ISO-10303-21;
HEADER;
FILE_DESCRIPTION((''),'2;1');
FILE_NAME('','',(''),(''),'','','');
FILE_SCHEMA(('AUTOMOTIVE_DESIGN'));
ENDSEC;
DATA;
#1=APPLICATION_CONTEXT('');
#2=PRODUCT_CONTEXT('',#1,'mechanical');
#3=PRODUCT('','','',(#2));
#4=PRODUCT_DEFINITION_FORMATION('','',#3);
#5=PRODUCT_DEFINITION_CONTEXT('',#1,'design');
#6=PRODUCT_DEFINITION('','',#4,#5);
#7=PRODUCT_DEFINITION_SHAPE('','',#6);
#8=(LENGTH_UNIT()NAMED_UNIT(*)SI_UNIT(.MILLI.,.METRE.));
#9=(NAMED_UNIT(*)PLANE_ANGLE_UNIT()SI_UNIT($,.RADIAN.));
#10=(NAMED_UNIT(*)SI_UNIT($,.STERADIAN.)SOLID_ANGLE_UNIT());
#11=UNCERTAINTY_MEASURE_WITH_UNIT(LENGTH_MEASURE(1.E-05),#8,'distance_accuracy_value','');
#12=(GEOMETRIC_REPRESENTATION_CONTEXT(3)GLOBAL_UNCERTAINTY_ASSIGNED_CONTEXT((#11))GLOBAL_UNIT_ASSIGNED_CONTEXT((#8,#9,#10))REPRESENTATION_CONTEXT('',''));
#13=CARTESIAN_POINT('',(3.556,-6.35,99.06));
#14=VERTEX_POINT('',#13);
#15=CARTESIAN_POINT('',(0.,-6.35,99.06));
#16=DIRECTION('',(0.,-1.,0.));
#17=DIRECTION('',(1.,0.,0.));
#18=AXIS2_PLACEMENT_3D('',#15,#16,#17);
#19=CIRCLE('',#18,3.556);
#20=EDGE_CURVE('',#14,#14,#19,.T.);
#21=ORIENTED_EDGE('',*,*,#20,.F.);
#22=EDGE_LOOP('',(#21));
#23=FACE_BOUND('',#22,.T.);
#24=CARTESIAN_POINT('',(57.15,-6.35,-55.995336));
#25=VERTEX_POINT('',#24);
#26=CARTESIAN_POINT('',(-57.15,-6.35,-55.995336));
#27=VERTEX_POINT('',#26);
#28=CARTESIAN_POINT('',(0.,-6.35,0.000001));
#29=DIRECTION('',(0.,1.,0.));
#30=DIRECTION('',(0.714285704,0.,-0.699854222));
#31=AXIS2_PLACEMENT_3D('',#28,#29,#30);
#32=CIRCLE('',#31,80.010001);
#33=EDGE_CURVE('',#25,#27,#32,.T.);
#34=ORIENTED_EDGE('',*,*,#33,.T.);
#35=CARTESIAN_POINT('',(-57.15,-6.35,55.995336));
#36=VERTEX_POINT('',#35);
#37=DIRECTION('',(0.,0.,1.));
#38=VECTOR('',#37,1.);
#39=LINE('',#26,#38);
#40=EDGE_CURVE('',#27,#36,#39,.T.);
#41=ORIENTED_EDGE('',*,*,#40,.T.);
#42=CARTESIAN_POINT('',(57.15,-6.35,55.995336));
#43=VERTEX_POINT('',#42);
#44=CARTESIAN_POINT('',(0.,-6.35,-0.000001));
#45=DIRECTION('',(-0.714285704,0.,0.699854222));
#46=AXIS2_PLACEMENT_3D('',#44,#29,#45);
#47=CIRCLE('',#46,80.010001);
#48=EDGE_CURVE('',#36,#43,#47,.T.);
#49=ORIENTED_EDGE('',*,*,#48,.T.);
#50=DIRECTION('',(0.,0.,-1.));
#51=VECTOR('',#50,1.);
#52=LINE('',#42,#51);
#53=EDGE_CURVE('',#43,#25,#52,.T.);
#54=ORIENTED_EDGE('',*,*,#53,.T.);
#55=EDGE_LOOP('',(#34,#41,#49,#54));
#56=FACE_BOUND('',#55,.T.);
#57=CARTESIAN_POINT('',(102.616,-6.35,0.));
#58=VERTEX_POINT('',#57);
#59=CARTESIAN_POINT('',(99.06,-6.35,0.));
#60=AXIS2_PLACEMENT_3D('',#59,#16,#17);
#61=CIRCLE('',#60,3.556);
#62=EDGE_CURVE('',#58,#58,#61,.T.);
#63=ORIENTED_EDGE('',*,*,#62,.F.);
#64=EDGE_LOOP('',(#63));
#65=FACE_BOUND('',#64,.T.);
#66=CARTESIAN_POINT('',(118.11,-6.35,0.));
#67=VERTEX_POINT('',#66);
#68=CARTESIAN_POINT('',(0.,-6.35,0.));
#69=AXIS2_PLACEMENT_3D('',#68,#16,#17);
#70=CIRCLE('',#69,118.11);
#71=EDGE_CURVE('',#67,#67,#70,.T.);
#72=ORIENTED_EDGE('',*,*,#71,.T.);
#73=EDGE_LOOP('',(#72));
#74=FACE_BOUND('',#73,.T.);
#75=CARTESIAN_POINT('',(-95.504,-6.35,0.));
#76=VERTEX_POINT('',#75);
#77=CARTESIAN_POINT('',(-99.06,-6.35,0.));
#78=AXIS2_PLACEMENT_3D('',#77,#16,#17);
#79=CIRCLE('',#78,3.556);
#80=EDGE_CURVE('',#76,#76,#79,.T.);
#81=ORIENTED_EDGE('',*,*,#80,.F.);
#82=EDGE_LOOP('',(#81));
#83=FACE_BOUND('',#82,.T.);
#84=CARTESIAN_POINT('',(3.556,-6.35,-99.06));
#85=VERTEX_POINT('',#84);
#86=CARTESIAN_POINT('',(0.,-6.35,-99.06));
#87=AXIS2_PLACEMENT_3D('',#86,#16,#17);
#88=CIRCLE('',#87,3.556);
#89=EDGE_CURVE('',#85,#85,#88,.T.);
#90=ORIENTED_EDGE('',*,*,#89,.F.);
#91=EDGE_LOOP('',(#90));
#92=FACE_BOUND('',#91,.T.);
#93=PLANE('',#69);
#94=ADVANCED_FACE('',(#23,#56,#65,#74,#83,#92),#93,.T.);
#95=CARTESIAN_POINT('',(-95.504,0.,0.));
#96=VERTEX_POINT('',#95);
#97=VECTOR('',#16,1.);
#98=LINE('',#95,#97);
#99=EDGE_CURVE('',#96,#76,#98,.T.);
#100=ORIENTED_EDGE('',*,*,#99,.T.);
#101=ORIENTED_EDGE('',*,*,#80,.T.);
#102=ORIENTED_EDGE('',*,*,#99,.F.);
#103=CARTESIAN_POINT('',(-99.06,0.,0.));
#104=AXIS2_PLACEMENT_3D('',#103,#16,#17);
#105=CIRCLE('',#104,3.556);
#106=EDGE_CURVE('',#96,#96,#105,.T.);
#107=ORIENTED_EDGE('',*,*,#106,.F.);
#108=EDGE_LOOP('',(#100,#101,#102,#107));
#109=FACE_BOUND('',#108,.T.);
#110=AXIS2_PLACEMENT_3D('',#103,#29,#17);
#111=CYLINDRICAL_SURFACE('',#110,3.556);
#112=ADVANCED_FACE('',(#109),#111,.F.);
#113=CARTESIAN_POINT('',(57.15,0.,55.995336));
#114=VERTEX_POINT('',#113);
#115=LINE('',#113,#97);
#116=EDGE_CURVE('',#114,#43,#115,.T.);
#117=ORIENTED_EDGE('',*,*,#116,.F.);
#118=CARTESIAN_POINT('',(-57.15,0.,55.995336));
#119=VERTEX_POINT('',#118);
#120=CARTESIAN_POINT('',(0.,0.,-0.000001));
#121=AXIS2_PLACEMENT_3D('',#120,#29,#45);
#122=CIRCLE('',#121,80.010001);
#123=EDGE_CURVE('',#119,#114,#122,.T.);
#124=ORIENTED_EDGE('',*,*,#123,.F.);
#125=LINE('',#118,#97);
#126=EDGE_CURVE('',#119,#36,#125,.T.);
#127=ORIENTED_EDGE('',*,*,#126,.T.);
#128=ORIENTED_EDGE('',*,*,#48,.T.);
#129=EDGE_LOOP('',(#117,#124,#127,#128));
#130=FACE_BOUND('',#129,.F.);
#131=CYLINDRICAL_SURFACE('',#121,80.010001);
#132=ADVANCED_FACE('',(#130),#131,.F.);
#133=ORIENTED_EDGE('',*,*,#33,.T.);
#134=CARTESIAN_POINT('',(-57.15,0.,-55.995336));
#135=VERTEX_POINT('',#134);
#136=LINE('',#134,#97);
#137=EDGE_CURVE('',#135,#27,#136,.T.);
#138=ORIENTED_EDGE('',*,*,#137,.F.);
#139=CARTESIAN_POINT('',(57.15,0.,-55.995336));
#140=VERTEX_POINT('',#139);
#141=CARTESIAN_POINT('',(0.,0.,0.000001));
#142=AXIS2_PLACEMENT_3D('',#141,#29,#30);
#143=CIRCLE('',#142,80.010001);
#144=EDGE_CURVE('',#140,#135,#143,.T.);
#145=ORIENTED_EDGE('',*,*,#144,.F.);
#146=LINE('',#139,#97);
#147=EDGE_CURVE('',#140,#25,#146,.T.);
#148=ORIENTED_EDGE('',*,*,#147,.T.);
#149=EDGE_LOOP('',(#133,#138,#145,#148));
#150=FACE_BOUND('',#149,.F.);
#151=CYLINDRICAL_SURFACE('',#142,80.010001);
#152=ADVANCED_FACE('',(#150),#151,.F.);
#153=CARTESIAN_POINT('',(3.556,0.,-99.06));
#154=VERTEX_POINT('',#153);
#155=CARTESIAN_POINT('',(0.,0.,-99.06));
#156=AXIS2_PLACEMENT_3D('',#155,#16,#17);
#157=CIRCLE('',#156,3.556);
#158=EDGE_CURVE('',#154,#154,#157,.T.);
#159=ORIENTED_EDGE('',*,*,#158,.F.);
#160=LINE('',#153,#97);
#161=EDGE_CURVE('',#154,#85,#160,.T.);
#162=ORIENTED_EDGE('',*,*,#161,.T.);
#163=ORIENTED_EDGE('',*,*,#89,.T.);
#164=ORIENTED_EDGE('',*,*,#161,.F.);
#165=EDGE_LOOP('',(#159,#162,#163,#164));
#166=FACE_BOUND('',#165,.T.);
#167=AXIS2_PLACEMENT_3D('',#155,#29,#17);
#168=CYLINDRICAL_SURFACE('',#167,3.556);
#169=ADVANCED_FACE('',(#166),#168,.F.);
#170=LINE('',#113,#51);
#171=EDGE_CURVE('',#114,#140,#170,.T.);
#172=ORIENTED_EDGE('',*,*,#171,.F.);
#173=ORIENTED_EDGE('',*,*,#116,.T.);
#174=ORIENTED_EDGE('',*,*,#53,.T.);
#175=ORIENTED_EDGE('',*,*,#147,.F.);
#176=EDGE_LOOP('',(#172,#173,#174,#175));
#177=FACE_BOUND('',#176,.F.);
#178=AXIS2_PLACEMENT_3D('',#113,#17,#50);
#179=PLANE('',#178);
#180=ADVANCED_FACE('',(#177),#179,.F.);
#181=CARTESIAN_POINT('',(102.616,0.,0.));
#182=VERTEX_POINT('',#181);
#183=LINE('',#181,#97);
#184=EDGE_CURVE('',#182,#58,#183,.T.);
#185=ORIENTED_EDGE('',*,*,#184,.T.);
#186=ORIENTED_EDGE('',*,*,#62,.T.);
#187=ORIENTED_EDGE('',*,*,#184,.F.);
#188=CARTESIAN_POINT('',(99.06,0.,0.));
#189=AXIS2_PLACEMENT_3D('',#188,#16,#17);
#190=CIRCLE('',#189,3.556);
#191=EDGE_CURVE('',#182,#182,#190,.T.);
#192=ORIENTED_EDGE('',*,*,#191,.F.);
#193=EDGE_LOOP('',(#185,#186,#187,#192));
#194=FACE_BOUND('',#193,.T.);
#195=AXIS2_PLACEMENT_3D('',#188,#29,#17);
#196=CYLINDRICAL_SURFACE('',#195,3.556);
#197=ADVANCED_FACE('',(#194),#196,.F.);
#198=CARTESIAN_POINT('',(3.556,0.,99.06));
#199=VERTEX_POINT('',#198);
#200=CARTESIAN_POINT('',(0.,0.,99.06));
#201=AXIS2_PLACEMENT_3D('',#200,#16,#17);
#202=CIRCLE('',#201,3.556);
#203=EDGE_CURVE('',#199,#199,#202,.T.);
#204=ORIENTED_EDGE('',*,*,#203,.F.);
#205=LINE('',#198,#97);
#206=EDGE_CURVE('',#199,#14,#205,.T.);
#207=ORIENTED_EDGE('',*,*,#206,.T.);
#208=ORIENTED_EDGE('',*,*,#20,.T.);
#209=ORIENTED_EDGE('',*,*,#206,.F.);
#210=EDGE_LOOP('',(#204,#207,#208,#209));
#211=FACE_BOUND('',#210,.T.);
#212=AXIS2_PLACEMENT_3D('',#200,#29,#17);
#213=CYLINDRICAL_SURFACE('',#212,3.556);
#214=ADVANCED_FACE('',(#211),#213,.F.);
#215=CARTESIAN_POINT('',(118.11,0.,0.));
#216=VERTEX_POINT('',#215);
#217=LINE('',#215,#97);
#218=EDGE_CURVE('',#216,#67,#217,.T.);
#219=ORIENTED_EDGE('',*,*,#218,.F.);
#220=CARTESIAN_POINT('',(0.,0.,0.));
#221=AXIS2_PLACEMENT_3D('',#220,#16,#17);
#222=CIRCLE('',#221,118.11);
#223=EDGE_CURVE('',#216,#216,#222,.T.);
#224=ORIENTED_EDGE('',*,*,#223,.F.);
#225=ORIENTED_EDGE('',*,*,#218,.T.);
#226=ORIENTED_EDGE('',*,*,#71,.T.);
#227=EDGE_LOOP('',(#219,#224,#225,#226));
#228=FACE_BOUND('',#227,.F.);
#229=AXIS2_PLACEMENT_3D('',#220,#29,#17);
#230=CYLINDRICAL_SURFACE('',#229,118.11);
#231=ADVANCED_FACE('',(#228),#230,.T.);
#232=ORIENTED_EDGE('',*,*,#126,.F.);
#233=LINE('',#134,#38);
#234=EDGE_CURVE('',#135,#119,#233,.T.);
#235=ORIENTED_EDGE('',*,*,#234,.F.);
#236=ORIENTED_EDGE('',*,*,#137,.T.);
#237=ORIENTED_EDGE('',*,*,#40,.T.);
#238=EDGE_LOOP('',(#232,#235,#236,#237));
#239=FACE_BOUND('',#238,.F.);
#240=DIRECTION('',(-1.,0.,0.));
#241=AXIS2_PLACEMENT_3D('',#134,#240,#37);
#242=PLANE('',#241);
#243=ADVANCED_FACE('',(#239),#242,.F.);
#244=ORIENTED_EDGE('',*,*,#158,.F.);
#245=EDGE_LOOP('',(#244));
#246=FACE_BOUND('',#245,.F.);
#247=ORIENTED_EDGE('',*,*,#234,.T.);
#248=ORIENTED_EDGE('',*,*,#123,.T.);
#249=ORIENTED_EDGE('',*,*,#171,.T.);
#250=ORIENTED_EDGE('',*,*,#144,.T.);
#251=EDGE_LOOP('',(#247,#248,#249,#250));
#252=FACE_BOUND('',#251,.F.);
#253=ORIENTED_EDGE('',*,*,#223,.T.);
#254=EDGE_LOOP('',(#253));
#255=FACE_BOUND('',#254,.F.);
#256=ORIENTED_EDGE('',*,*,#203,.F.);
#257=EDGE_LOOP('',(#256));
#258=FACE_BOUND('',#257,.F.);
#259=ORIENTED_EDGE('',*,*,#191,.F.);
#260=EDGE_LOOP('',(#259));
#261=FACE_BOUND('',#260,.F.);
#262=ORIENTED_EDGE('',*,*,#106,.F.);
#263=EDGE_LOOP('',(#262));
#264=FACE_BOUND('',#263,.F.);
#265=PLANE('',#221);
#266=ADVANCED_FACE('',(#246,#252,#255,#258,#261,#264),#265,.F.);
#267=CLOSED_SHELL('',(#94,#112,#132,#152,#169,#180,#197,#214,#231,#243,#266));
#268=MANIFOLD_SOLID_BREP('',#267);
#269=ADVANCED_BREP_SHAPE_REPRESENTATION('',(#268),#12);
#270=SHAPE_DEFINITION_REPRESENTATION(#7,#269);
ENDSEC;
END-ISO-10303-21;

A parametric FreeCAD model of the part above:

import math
import FreeCAD as App
import Part
import Sketcher
from FreeCAD import Vector
Q = App.Units.Quantity

doc = App.newDocument("Part")
body = doc.addObject("PartDesign::Body", "Body")

# Sketch on XZ plane
sketch1 = body.newObject("Sketcher::SketchObject", "Sketch")
sketch1.AttachmentSupport = (doc.getObject("XZ_Plane"), [""])
sketch1.MapMode = "FlatFace"
sketch1.addGeometry(Part.Circle(Vector(0, 0, 0), Vector(0, 0, 1), 118.1), False)
sketch1.addGeometry(Part.Circle(Vector(0, -99.1, 0), Vector(0, 0, 1), 3.6), False)
sketch1.addGeometry(Part.Circle(Vector(-99.1, 0, 0), Vector(0, 0, 1), 3.6), False)
sketch1.addGeometry(Part.LineSegment(Vector(57.1, 56, 0), Vector(57.1, -56, 0)), False)
sketch1.addGeometry(Part.ArcOfCircle(Part.Circle(Vector(0, 0, 0), Vector(0, 0, 1), 80), math.radians(-136), math.radians(-44)), False)
sketch1.addGeometry(Part.LineSegment(Vector(-57.1, -56, 0), Vector(-57.1, 56, 0)), False)
sketch1.addGeometry(Part.ArcOfCircle(Part.Circle(Vector(0, 0, 0), Vector(0, 0, 1), 80), math.radians(44), math.radians(136)), False)
sketch1.addGeometry(Part.Circle(Vector(99.1, 0, 0), Vector(0, 0, 1), 3.6), False)
sketch1.addGeometry(Part.Circle(Vector(0, 99.1, 0), Vector(0, 0, 1), 3.6), False)
sketch1.addConstraint(Sketcher.Constraint("Coincident", 3, 2, 4, 2))
sketch1.addConstraint(Sketcher.Constraint("Coincident", 4, 1, 5, 1))
sketch1.addConstraint(Sketcher.Constraint("Coincident", 5, 2, 6, 2))
sketch1.addConstraint(Sketcher.Constraint("Coincident", 6, 1, 3, 1))
sketch1.addConstraint(Sketcher.Constraint("Vertical", 3))
sketch1.addConstraint(Sketcher.Constraint("Vertical", 5))
sketch1.addConstraint(Sketcher.Constraint("Coincident", 0, 3, -1, 1))
sketch1.addConstraint(Sketcher.Constraint("Coincident", 4, 3, -1, 1))
sketch1.addConstraint(Sketcher.Constraint("Coincident", 6, 3, -1, 1))
sketch1.addConstraint(Sketcher.Constraint("Equal", 1, 2))
sketch1.addConstraint(Sketcher.Constraint("Equal", 4, 6))
sketch1.addConstraint(Sketcher.Constraint("Equal", 2, 7))
sketch1.addConstraint(Sketcher.Constraint("Equal", 7, 8))
sketch1.addConstraint(Sketcher.Constraint("Symmetric", 2, 3, 7, 3, -1, 1))
sketch1.addConstraint(Sketcher.Constraint("Symmetric", 1, 3, 8, 3, -1, 1))
sketch1.addConstraint(Sketcher.Constraint("PointOnObject", 1, 3, -2))
sketch1.addConstraint(Sketcher.Constraint("PointOnObject", 2, 3, -1))
sketch1.addConstraint(Sketcher.Constraint("Horizontal", 3, 2, 4, 1))
sketch1.addConstraint(Sketcher.Constraint("Diameter", 0, Q("9.3 in")))
sketch1.addConstraint(Sketcher.Constraint("Diameter", 1, Q("0.28 in")))
sketch1.addConstraint(Sketcher.Constraint("Radius", 4, Q("3.15 in")))
sketch1.addConstraint(Sketcher.Constraint("DistanceY", 1, 3, -1, 1, Q("3.9 in")))
sketch1.addConstraint(Sketcher.Constraint("DistanceX", 2, 3, -1, 1, Q("3.9 in")))
sketch1.addConstraint(Sketcher.Constraint("DistanceX", -1, 1, 3, 2, Q("2.25 in")))
pad1 = body.newObject("PartDesign::Pad", "Pad")
pad1.Profile = sketch1
pad1.Length = Q("0.25 in")

doc.recompute()
